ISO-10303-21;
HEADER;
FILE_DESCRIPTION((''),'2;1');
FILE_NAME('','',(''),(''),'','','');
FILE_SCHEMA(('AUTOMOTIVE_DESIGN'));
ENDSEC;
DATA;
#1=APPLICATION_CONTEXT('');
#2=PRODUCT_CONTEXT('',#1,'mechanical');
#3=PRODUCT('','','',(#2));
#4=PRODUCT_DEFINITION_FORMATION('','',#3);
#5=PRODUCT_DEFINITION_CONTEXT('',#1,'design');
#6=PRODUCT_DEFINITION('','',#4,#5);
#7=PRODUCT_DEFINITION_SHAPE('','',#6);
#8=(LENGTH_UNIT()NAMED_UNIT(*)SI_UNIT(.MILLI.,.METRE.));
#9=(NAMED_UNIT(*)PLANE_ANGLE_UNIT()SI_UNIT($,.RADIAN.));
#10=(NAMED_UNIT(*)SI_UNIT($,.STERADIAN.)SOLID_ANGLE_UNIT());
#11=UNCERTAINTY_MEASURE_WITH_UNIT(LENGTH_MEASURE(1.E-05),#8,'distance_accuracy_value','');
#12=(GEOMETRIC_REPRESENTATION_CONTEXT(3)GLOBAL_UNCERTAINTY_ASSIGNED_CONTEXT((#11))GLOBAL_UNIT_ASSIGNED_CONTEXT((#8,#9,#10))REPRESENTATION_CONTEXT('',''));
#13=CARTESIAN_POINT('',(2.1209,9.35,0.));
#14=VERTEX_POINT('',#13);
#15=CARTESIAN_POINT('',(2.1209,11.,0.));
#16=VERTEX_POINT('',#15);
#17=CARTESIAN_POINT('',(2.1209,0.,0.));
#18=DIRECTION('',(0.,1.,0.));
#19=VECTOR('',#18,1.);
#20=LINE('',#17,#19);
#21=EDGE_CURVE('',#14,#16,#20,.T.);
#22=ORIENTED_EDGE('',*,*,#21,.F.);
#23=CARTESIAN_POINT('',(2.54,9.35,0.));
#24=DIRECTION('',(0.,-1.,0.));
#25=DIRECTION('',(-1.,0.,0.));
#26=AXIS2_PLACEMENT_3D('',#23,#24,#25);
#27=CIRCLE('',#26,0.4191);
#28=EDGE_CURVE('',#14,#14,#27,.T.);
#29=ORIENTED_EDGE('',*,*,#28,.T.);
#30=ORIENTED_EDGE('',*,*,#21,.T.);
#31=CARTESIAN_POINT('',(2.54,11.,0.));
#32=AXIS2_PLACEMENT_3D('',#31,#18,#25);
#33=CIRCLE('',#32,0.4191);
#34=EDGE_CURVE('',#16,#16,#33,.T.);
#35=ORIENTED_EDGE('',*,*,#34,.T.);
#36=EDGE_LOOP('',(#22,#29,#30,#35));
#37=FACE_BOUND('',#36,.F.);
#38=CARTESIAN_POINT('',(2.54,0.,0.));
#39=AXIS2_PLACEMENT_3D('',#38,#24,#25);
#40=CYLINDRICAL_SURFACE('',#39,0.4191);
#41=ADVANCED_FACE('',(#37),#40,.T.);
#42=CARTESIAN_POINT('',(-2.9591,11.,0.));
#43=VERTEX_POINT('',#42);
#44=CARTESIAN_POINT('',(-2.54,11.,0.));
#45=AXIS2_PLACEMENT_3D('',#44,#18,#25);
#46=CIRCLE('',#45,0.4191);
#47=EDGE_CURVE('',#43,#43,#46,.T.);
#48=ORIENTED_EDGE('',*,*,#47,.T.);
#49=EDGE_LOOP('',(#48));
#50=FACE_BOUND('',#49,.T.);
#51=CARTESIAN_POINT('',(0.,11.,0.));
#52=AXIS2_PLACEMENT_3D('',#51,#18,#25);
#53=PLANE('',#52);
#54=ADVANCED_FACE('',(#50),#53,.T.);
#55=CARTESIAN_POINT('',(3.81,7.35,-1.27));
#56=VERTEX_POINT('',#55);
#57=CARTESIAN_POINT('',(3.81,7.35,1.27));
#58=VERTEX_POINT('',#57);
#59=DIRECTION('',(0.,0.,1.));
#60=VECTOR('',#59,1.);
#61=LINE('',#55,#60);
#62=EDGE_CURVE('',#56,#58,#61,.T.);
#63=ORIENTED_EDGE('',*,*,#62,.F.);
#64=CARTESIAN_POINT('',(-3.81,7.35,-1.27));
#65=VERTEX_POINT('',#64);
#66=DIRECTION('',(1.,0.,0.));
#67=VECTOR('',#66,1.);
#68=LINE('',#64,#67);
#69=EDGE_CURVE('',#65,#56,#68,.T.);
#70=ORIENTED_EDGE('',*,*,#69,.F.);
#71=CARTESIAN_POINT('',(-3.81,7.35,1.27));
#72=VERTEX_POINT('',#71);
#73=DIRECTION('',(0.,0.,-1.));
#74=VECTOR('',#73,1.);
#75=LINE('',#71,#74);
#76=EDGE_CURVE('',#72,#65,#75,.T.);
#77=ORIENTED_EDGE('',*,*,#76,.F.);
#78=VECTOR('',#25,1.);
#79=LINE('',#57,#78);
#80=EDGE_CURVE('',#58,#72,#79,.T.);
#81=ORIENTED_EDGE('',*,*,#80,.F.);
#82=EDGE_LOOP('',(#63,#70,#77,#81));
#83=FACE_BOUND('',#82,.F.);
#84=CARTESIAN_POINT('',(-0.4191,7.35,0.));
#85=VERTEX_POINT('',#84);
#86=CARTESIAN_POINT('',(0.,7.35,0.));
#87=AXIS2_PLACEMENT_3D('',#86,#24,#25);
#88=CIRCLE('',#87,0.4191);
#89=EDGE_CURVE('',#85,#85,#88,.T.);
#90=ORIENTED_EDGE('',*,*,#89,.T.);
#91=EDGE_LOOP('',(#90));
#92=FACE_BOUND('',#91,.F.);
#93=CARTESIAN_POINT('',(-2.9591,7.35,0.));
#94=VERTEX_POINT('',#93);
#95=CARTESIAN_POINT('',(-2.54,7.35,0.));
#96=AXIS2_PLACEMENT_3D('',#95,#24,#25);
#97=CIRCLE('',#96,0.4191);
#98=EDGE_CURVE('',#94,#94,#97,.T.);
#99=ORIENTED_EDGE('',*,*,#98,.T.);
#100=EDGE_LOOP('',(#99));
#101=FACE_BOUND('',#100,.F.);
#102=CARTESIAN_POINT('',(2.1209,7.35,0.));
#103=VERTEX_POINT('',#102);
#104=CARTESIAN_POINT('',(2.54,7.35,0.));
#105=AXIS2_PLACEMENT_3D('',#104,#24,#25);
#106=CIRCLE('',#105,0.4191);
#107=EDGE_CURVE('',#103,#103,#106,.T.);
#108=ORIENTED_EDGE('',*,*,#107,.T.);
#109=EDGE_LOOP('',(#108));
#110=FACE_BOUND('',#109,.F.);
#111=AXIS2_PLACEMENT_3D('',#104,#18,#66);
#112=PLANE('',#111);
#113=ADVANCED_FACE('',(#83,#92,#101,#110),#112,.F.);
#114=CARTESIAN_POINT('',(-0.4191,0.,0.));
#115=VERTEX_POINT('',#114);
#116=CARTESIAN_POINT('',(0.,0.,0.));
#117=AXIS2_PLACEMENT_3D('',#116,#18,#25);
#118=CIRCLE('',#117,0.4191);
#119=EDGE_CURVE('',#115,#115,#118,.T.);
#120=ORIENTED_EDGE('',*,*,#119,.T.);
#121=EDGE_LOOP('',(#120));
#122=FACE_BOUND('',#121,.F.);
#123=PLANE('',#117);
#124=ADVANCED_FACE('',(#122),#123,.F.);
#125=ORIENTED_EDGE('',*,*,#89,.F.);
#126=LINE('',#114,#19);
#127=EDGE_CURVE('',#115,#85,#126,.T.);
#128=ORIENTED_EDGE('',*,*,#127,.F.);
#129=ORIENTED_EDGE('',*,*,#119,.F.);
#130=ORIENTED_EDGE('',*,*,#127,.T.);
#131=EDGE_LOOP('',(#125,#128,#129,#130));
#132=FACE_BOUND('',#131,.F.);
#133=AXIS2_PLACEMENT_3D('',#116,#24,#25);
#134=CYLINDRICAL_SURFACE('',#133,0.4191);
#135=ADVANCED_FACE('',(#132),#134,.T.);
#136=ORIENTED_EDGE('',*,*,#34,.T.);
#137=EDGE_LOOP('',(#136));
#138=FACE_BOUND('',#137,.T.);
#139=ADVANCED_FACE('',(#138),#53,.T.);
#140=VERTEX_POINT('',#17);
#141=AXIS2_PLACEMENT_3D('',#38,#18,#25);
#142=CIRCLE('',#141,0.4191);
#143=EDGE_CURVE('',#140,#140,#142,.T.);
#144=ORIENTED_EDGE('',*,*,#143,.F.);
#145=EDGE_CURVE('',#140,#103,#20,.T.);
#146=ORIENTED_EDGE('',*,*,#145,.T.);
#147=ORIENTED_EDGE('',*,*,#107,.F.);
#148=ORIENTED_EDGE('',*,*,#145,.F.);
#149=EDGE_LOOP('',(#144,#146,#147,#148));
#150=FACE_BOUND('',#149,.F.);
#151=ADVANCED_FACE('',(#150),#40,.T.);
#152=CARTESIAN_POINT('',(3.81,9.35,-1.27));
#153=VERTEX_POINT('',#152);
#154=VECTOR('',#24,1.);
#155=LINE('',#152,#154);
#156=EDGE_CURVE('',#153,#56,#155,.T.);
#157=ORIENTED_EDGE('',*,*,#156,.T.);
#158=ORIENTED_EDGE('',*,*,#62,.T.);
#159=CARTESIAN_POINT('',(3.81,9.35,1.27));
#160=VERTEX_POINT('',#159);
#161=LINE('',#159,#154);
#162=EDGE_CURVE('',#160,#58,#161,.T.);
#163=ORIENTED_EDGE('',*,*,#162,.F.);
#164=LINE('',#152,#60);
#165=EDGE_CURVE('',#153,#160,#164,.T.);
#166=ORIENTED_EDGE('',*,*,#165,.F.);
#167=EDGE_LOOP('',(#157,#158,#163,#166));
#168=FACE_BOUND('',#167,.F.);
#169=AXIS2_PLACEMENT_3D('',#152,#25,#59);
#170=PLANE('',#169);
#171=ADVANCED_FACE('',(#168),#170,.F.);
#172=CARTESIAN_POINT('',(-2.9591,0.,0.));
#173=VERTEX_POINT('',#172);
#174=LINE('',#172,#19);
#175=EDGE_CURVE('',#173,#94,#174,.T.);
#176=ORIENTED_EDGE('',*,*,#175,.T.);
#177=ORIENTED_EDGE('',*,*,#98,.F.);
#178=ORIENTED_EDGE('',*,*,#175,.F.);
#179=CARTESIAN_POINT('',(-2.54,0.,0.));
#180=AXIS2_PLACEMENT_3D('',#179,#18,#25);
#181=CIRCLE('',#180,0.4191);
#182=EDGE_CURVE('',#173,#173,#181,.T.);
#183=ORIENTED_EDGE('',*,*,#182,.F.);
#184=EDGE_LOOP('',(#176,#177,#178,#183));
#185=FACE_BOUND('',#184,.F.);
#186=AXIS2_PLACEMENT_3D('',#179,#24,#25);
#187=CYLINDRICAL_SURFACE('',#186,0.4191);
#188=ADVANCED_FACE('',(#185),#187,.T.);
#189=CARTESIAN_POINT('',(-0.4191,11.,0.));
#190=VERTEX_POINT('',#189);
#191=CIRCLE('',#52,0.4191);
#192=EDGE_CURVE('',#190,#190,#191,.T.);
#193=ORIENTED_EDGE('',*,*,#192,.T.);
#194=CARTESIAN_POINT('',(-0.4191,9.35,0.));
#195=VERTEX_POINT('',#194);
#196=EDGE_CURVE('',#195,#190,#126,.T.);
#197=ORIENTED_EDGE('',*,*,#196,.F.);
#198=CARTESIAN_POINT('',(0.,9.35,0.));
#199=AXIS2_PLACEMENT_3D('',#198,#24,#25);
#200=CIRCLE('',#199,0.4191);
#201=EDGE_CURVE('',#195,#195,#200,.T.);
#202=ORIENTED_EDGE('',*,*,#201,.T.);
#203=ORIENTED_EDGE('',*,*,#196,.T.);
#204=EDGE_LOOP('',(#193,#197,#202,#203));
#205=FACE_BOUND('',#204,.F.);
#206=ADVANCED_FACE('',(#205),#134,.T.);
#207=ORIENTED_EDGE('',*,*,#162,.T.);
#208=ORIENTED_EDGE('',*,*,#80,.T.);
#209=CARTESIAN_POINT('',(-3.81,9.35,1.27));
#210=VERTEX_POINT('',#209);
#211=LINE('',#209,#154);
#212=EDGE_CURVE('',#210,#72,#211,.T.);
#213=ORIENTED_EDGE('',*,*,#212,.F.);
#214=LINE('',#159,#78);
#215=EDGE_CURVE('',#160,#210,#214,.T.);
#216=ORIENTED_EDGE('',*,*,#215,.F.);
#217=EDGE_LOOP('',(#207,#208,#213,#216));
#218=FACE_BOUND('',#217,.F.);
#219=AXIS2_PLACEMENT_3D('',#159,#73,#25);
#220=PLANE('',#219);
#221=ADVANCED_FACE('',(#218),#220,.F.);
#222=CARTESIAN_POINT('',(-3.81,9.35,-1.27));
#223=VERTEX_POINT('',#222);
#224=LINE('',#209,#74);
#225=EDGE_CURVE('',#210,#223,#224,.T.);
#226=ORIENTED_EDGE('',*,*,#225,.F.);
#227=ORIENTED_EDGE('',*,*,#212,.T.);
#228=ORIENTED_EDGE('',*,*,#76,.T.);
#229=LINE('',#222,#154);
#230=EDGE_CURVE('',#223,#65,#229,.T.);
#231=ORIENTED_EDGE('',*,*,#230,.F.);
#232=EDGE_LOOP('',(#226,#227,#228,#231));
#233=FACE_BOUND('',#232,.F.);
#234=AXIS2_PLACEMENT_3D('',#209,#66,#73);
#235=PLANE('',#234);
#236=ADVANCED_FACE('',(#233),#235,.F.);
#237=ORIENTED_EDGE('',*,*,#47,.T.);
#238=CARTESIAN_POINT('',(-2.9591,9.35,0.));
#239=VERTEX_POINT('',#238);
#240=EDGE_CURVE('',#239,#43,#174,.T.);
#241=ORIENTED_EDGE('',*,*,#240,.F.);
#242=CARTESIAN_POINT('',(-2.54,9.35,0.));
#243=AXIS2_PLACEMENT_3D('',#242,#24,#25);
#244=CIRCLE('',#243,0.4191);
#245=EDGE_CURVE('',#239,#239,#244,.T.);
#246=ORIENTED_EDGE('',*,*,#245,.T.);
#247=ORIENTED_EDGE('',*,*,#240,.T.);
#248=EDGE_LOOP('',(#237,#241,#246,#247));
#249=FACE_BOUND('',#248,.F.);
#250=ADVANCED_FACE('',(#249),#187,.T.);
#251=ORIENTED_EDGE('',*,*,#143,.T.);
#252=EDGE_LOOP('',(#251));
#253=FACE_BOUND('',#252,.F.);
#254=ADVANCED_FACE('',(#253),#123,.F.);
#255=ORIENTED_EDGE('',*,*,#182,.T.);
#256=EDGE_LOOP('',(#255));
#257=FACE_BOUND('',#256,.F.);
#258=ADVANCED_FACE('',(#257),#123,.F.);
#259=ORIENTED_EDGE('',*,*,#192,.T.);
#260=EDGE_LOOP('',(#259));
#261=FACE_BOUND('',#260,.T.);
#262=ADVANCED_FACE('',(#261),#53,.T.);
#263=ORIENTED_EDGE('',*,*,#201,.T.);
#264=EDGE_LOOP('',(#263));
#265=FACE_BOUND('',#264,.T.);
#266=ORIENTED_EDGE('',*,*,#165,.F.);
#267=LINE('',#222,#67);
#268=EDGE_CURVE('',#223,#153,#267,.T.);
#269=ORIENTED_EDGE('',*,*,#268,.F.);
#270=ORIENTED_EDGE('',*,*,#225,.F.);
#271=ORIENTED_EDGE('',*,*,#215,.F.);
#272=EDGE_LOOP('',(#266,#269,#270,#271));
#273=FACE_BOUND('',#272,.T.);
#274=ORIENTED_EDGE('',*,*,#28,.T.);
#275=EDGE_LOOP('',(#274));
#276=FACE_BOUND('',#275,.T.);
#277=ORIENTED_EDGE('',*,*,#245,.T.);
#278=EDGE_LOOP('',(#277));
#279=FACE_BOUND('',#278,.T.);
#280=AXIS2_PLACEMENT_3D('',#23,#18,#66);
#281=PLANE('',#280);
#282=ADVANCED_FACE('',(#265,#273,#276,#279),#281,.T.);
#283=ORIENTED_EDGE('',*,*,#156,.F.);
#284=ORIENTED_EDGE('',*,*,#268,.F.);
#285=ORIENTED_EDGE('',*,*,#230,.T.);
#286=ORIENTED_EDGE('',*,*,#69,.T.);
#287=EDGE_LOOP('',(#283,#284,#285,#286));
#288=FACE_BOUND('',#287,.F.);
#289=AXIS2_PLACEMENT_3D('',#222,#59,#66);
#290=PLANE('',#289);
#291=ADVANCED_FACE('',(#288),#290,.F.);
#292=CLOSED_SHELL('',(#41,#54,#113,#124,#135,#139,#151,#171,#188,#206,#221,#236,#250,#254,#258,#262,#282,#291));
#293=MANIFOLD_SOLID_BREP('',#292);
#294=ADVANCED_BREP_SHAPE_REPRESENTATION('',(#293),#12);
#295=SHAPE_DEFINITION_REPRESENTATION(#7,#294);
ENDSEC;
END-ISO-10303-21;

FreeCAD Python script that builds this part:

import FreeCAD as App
import Part
import Sketcher
from FreeCAD import Vector
Q = App.Units.Quantity


def add_polygon(sketch, points):
    """Adds a closed chain of lines whose ends are joined by coincident constraints."""
    first, n = sketch.GeometryCount, len(points)
    for a, b in zip(points, points[1:] + points[:1]):
        sketch.addGeometry(Part.LineSegment(App.Vector(*a, 0), App.Vector(*b, 0)), False)
    for i in range(n):
        sketch.addConstraint(Sketcher.Constraint("Coincident", first + i, 2, first + (i + 1) % n, 1))

doc = App.newDocument("Part")
body = doc.addObject("PartDesign::Body", "Body")
body.AllowCompound = True

# Sketch on XZ plane
sketch1 = body.newObject("Sketcher::SketchObject", "Sketch")
sketch1.AttachmentSupport = (doc.getObject("XZ_Plane"), [""])
sketch1.MapMode = "FlatFace"
sketch1.addGeometry([
    Part.Circle(Vector(0, 0, 0), Vector(0, 0, 1), 0.42),
    Part.Circle(Vector(-2.54, 0, 0), Vector(0, 0, 1), 0.42),
    Part.Circle(Vector(2.54, 0, 0), Vector(0, 0, 1), 0.42),
], False)
sketch1.addConstraint([
    Sketcher.Constraint("Coincident", 0, 3, -1, 1),
    Sketcher.Constraint("Equal", 0, 1),
    Sketcher.Constraint("Equal", 1, 2),
    Sketcher.Constraint("Symmetric", 1, 3, 2, 3, -1, 1),
    Sketcher.Constraint("PointOnObject", 1, 3, -1),
    Sketcher.Constraint("Diameter", 0, Q("0.033 in")),
    Sketcher.Constraint("DistanceX", 1, 3, -1, 1, Q("0.1 in")),
])
pad1 = body.newObject("PartDesign::Pad", "Pad")
pad1.Profile = sketch1
pad1.Length = 11
pad1.Reversed = True

# Sketch on XZ plane
sketch2 = body.newObject("Sketcher::SketchObject", "Sketch001")
sketch2.AttachmentSupport = (doc.getObject("XZ_Plane"), [""])
sketch2.MapMode = "FlatFace"
sketch2.AttachmentOffset = App.Placement(Vector(0, 0, -0.3681102 * 25.4), App.Rotation())
add_polygon(sketch2, [(3.8, -1.3), (-3.8, -1.3), (-3.8, 1.3), (3.8, 1.3)])  # lines 0-3
sketch2.addConstraint([
    Sketcher.Constraint("Horizontal", 0),
    Sketcher.Constraint("Vertical", 1),
    Sketcher.Constraint("Horizontal", 2),
    Sketcher.Constraint("Vertical", 3),
    Sketcher.Constraint("Symmetric", 0, 2, 2, 2, -1, 1),
    Sketcher.Constraint("DistanceY", 1, 1, 1, 2, Q("0.1 in")),
    Sketcher.Constraint("DistanceX", 0, 2, -1, 1, Q("0.15 in")),
])
pad2 = body.newObject("PartDesign::Pad", "Pad001")
pad2.Profile = sketch2
pad2.Length = 2

doc.recompute()
